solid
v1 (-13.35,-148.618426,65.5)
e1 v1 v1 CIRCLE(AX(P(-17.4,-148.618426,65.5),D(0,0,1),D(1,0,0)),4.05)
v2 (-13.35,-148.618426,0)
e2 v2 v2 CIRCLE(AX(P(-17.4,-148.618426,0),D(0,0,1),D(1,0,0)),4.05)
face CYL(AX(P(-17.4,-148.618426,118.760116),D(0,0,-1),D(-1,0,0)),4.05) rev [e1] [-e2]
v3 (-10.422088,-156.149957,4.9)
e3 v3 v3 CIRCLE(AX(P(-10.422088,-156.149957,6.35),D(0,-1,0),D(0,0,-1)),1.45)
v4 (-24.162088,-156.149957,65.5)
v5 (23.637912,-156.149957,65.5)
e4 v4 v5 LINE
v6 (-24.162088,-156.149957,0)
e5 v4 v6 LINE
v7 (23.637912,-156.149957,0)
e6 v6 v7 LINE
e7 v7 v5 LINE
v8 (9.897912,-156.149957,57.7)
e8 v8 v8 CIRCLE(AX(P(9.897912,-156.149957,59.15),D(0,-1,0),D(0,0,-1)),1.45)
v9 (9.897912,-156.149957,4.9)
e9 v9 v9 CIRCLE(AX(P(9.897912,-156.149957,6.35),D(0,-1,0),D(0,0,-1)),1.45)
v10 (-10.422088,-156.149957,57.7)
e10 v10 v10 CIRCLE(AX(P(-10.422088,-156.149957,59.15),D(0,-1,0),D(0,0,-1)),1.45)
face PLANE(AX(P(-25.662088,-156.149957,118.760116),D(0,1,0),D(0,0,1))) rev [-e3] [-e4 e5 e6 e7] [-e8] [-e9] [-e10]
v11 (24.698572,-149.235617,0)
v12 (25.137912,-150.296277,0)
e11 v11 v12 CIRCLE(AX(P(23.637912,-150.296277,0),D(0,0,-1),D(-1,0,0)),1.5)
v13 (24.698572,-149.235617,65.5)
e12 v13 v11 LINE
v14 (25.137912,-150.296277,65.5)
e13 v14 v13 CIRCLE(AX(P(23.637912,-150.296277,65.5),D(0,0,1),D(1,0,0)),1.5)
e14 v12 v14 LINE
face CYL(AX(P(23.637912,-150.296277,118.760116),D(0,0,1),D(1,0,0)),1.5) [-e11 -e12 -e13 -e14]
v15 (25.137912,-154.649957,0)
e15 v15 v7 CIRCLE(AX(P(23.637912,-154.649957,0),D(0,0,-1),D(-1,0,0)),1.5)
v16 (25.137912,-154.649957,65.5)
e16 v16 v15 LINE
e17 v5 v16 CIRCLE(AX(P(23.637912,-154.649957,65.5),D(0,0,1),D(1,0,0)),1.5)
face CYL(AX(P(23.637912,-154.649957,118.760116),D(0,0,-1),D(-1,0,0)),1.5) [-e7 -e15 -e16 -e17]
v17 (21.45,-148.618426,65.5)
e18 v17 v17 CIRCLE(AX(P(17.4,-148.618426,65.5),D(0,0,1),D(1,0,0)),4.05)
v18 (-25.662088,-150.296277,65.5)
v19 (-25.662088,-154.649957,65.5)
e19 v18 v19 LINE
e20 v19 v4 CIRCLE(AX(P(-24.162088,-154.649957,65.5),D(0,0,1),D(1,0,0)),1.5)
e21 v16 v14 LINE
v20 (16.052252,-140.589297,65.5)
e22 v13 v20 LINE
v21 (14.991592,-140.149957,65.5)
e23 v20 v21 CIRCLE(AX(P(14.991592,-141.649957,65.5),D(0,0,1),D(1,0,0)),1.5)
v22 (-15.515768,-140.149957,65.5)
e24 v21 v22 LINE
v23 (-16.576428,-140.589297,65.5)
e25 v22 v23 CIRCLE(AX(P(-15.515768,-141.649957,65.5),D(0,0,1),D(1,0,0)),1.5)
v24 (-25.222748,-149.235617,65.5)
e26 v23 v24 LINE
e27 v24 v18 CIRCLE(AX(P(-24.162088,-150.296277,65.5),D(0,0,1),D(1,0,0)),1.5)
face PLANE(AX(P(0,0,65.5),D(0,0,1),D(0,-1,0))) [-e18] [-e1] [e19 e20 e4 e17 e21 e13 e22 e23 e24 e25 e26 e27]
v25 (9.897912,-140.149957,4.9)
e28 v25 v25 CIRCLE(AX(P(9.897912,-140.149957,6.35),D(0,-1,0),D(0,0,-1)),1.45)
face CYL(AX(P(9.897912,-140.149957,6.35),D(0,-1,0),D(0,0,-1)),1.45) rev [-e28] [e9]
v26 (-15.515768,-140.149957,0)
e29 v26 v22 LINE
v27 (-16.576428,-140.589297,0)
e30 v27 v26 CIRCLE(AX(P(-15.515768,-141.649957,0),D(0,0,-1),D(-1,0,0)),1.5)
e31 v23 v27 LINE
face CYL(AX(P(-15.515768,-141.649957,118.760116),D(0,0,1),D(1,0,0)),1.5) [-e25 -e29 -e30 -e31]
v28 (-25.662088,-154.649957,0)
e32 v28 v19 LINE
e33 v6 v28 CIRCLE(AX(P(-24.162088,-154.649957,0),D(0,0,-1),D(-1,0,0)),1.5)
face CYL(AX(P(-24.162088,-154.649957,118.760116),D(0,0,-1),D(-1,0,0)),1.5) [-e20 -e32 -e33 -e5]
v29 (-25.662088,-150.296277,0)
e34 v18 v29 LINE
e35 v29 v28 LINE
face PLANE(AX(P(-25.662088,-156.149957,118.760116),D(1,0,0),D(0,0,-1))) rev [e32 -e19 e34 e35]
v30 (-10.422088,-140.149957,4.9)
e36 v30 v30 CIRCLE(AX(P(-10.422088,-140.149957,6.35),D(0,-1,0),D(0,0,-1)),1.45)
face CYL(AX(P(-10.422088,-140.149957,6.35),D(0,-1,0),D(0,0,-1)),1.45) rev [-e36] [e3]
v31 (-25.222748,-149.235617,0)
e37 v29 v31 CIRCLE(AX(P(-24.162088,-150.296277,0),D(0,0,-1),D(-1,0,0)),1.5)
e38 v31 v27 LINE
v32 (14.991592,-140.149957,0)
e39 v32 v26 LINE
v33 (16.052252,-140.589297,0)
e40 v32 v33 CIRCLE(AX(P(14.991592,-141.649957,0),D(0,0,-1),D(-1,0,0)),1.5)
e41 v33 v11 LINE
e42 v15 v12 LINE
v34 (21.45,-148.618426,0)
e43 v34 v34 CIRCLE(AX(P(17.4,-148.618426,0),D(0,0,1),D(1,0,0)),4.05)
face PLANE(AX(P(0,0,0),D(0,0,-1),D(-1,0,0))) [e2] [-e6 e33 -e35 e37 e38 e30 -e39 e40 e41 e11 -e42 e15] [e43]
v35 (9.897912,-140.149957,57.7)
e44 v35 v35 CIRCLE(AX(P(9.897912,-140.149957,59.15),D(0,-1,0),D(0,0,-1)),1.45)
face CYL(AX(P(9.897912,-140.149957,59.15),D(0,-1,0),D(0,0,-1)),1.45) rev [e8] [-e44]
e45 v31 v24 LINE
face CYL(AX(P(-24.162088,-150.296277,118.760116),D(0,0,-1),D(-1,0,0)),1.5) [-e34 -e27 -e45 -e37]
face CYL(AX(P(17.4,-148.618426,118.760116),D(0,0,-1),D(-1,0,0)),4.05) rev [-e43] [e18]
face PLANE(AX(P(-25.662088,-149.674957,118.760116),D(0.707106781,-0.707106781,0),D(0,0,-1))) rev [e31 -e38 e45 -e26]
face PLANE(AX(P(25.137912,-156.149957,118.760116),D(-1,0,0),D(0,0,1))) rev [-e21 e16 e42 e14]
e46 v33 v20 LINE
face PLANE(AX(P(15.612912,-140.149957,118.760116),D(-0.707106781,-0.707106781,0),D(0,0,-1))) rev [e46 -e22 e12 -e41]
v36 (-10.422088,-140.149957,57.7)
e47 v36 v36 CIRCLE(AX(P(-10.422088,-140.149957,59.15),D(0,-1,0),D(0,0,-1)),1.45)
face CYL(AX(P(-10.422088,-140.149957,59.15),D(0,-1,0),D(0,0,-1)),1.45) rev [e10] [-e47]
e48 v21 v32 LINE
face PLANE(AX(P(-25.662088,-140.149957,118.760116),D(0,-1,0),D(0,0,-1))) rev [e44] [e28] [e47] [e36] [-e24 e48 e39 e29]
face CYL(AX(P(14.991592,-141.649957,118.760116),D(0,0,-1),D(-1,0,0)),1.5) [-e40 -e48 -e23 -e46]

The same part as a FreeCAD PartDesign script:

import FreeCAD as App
import Part
import Sketcher
from FreeCAD import Vector


def edges_at(feature, points):
    """Names of the edges that pass closest to the given points."""
    edges = feature.Shape.Edges
    near = lambda p: min(range(len(edges)), key=lambda i: edges[i].distToShape(Part.Vertex(*p))[0])
    return sorted({f"Edge{near(p) + 1}" for p in points})


def add_polygon(sketch, points):
    """Adds a closed chain of lines whose ends are joined by coincident constraints."""
    first, n = sketch.GeometryCount, len(points)
    for a, b in zip(points, points[1:] + points[:1]):
        sketch.addGeometry(Part.LineSegment(App.Vector(*a, 0), App.Vector(*b, 0)), False)
    for i in range(n):
        sketch.addConstraint(Sketcher.Constraint("Coincident", first + i, 2, first + (i + 1) % n, 1))

doc = App.newDocument("Part")
body = doc.addObject("PartDesign::Body", "Body")

sketch1 = body.newObject("Sketcher::SketchObject", "Sketch")
sketch1.AttachmentSupport = (doc.getObject("XY_Plane"), [""])
sketch1.MapMode = "FlatFace"
add_polygon(sketch1, [(-25.662088, -140.149957), (-25.662088, -156.149957), (25.137912, -156.149957), (25.137912, -140.149957)])
sketch1.addGeometry(Part.Circle(Vector(-17.4, -148.618426, 0), Vector(0, 0, 1), 4.05), False)
sketch1.addGeometry(Part.Circle(Vector(17.4, -148.618426, 0), Vector(0, 0, 1), 4.05), False)
sketch1.addConstraint(Sketcher.Constraint("Vertical", 0))
sketch1.addConstraint(Sketcher.Constraint("Horizontal", 1))
sketch1.addConstraint(Sketcher.Constraint("Vertical", 2))
sketch1.addConstraint(Sketcher.Constraint("Horizontal", 3))
sketch1.addConstraint(Sketcher.Constraint("Equal", 4, 5))
sketch1.addConstraint(Sketcher.Constraint("Symmetric", 4, 3, 5, 3, -2))
sketch1.addConstraint(Sketcher.Constraint("Diameter", 4, 8.1))
sketch1.addConstraint(Sketcher.Constraint("DistanceY", 0, 2, 0, 1, 16.0))
sketch1.addConstraint(Sketcher.Constraint("DistanceX", 1, 1, 1, 2, 50.8))
sketch1.addConstraint(Sketcher.Constraint("DistanceX", 4, 3, -1, 1, 17.4))
sketch1.addConstraint(Sketcher.Constraint("DistanceY", 0, 2, 4, 3, 7.53153))
sketch1.addConstraint(Sketcher.Constraint("DistanceY", 4, 3, -1, 1, 148.618426))
sketch1.addConstraint(Sketcher.Constraint("DistanceX", 0, 2, -1, 1, 25.662088))
pad1 = body.newObject("PartDesign::Pad", "Pad")
pad1.Profile = sketch1
pad1.Length = 65.5
doc.recompute()

fillet = body.newObject("PartDesign::Fillet", "Fillet")
fillet.Base = (pad1, edges_at(pad1, [(25.138, -156.15, 32.75), (-25.662, -156.15, 32.75)]))
fillet.Radius = 1.5
doc.recompute()

chamfer = body.newObject("PartDesign::Chamfer", "Chamfer")
chamfer.Base = (fillet, edges_at(fillet, [(-25.662, -140.15, 32.75), (25.138, -140.15, 32.75)]))
chamfer.Size = 9.525
doc.recompute()

fillet2 = body.newObject("PartDesign::Fillet", "Fillet001")
fillet2.Base = (chamfer, edges_at(chamfer, [
    (-16.137, -140.15, 32.75),
    (15.613, -140.15, 32.75),
    (25.138, -149.675, 32.75),
    (-25.662, -149.675, 32.75),
]))
fillet2.Radius = 1.5

sketch2 = body.newObject("Sketcher::SketchObject", "Sketch001")
sketch2.AttachmentSupport = (doc.getObject("XZ_Plane"), [""])
sketch2.MapMode = "FlatFace"
sketch2.AttachmentOffset = App.Placement(Vector(0, 0, 156.149957), App.Rotation())
sketch2.addGeometry(Part.Circle(Vector(-10.422088, 59.15, 0), Vector(0, 0, 1), 1.45), False)
sketch2.addGeometry(Part.Circle(Vector(9.897912, 59.15, 0), Vector(0, 0, 1), 1.45), False)
sketch2.addGeometry(Part.Circle(Vector(-10.422088, 6.35, 0), Vector(0, 0, 1), 1.45), False)
sketch2.addGeometry(Part.Circle(Vector(9.897912, 6.35, 0), Vector(0, 0, 1), 1.45), False)
sketch2.addConstraint(Sketcher.Constraint("Equal", 0, 1))
sketch2.addConstraint(Sketcher.Constraint("Equal", 1, 2))
sketch2.addConstraint(Sketcher.Constraint("Equal", 2, 3))
sketch2.addConstraint(Sketcher.Constraint("Horizontal", 0, 3, 1, 3))
sketch2.addConstraint(Sketcher.Constraint("Horizontal", 2, 3, 3, 3))
sketch2.addConstraint(Sketcher.Constraint("Vertical", 0, 3, 2, 3))
sketch2.addConstraint(Sketcher.Constraint("Vertical", 1, 3, 3, 3))
sketch2.addConstraint(Sketcher.Constraint("Diameter", 0, 2.9))
sketch2.addConstraint(Sketcher.Constraint("DistanceY", 2, 3, 0, 3, 52.8))
sketch2.addConstraint(Sketcher.Constraint("DistanceY", -1, 1, 0, 3, 59.15))
sketch2.addConstraint(Sketcher.Constraint("DistanceX", 0, 3, 1, 3, 20.32))
sketch2.addConstraint(Sketcher.Constraint("DistanceX", 0, 3, -1, 1, 10.422088))
pocket1 = body.newObject("PartDesign::Pocket", "Pocket")
pocket1.Profile = sketch2
pocket1.Type = "ThroughAll"

doc.recompute()
